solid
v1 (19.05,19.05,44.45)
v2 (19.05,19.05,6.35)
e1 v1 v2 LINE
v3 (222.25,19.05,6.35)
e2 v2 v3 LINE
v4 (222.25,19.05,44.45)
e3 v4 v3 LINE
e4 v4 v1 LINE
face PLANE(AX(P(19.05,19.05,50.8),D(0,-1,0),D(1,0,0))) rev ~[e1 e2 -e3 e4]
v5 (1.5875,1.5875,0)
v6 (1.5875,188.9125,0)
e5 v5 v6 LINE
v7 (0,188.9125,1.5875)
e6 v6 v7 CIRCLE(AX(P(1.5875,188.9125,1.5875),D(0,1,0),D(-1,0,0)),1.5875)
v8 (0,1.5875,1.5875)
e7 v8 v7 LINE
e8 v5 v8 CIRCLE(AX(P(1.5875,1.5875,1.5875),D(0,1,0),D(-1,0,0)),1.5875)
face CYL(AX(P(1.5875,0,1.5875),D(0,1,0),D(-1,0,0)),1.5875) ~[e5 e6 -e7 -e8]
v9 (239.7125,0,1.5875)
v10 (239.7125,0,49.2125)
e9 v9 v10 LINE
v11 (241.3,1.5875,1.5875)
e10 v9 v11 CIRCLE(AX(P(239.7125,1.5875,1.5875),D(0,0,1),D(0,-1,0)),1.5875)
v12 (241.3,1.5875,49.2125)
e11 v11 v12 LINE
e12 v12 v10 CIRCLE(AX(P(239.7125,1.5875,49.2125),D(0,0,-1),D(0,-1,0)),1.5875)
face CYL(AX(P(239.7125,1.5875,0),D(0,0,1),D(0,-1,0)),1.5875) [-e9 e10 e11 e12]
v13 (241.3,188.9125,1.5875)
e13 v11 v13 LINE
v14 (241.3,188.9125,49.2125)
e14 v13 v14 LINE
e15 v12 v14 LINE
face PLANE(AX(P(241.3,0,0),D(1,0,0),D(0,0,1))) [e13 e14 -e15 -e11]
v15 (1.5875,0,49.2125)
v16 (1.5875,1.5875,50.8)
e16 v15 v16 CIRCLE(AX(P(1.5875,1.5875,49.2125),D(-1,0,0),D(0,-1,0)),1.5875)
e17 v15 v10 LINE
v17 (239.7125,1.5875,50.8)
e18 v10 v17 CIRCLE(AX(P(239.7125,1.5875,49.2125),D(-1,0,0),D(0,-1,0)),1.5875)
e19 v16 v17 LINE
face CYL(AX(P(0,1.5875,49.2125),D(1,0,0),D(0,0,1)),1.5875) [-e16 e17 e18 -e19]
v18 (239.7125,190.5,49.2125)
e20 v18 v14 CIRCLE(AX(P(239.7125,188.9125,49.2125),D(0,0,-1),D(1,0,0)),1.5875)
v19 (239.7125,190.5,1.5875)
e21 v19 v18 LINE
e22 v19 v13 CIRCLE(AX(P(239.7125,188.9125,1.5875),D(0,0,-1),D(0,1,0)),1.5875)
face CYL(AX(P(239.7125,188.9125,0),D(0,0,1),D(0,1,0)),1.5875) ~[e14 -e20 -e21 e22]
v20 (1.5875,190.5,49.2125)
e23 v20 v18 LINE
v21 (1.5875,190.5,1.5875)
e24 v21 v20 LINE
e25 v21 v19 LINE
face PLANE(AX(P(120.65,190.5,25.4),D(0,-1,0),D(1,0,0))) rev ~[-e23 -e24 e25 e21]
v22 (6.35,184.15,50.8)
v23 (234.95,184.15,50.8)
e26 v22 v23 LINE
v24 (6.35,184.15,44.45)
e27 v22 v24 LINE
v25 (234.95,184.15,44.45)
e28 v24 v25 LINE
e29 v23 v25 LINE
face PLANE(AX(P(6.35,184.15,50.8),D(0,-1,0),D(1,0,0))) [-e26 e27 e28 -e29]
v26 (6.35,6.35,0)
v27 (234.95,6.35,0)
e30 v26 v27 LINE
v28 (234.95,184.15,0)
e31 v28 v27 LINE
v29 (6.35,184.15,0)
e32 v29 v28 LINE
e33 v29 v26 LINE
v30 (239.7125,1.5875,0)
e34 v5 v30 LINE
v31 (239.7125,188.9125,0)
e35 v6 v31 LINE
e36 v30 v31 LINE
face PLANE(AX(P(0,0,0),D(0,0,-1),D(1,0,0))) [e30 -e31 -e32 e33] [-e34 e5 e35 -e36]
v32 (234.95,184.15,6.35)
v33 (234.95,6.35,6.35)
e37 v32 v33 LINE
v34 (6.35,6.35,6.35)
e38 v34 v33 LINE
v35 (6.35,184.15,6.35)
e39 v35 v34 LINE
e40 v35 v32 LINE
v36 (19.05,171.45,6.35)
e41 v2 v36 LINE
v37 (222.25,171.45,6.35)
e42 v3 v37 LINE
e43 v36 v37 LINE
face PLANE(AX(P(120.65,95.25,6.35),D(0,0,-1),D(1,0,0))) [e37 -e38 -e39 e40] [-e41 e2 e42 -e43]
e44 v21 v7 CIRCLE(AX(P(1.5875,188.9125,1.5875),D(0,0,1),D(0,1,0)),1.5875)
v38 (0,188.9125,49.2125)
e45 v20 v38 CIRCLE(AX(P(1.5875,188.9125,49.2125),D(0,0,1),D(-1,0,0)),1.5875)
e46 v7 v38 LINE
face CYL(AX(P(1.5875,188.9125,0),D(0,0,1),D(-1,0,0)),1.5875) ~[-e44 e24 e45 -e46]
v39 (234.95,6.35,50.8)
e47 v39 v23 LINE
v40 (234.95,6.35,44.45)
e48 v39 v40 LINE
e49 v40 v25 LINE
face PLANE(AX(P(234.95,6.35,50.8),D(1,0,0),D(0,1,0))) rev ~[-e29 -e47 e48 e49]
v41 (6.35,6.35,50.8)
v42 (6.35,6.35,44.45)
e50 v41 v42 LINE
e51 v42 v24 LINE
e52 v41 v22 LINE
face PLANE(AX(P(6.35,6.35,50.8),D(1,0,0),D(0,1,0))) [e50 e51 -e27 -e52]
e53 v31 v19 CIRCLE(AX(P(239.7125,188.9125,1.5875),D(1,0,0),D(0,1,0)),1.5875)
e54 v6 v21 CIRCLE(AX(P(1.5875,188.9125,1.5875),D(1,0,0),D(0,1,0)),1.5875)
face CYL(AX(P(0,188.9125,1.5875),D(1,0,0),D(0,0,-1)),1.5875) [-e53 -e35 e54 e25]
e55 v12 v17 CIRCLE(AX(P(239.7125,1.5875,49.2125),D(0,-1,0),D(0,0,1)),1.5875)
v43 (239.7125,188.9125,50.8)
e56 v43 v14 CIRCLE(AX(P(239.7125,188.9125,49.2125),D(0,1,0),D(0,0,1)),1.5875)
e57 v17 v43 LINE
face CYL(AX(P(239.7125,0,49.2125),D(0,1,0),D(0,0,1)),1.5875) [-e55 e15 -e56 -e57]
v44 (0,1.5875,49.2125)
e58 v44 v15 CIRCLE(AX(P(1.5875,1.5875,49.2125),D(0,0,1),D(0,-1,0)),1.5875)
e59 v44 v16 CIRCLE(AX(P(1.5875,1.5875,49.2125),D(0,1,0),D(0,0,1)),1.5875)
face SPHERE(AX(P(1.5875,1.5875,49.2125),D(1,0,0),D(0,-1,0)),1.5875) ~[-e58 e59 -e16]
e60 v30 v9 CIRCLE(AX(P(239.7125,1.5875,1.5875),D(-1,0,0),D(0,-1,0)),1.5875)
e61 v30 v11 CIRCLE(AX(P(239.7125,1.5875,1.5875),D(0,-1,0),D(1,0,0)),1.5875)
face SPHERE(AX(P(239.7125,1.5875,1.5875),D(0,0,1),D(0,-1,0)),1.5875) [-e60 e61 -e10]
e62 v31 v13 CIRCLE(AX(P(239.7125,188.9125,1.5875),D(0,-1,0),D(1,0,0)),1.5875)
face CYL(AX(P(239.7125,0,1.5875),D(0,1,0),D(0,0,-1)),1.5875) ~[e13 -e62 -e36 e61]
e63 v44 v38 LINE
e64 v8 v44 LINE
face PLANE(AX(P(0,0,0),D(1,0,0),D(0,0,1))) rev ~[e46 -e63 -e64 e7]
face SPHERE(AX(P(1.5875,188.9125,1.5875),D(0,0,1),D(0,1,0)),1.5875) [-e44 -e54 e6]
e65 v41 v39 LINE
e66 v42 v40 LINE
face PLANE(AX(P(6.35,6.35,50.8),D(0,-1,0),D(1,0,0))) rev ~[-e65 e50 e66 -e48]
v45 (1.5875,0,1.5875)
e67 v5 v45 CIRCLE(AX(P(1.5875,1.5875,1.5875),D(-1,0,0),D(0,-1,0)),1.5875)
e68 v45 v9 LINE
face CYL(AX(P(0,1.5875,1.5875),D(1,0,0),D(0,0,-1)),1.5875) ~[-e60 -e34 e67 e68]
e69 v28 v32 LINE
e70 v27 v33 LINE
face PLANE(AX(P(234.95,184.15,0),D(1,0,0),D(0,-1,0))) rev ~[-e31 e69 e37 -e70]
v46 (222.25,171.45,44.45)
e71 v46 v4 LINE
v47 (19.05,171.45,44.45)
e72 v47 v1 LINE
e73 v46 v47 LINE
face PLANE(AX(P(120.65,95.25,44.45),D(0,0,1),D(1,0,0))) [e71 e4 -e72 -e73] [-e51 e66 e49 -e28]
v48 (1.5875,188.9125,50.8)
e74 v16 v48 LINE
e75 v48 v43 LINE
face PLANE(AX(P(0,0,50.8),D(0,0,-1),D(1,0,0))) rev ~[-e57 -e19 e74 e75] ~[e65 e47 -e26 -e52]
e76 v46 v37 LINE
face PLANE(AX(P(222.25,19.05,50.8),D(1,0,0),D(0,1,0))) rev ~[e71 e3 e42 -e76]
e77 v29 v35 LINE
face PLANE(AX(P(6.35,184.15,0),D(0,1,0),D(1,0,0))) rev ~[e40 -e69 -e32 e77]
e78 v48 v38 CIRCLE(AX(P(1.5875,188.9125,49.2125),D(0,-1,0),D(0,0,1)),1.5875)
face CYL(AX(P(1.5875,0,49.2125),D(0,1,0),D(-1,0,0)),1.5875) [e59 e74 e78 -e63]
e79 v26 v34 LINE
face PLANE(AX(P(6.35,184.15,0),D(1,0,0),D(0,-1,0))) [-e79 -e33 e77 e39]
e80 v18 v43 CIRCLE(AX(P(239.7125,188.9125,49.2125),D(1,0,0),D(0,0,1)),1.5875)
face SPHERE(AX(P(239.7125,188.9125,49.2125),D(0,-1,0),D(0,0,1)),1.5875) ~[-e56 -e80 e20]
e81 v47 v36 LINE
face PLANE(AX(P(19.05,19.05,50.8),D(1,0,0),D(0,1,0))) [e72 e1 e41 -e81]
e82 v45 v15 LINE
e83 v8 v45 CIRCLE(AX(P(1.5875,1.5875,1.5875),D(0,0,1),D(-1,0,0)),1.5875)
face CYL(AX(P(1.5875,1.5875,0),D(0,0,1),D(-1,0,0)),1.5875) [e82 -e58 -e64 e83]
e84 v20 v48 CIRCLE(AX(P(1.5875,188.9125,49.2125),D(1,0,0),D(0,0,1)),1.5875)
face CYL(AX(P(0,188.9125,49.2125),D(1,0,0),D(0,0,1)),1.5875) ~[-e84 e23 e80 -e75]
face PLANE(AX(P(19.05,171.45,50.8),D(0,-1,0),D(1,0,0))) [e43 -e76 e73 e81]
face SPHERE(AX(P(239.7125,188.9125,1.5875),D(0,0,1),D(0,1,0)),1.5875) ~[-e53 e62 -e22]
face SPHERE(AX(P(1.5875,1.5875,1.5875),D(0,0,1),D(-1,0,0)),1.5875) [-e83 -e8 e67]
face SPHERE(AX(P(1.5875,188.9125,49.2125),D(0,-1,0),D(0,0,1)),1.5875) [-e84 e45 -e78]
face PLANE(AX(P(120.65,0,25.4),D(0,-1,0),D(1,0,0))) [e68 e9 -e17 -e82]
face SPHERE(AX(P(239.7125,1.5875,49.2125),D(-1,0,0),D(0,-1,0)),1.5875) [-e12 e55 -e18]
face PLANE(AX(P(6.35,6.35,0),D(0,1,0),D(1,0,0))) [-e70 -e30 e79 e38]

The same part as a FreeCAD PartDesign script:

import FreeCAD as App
import Part
import Sketcher

V = App.Vector
Q = App.Units.Quantity


def edges_at(feature, points):
    """Names of the edges that pass closest to the given points."""
    edges = feature.Shape.Edges
    near = lambda p: min(range(len(edges)), key=lambda i: edges[i].distToShape(Part.Vertex(*p))[0])
    return sorted({f"Edge{near(p) + 1}" for p in points})

doc = App.newDocument("Part")
body = doc.addObject("PartDesign::Body", "Body")

# Sketch on XZ plane
sketch1 = body.newObject("Sketcher::SketchObject", "Sketch")
sketch1.AttachmentSupport = (doc.getObject("XZ_Plane"), [""])
sketch1.MapMode = "FlatFace"
sketch1.addGeometry([
    Part.LineSegment(V(0, 50.8, 0), V(0, 0, 0)),
    Part.LineSegment(V(0, 0, 0), V(241.3, 0, 0)),
    Part.LineSegment(V(241.3, 0, 0), V(241.3, 50.8, 0)),
    Part.LineSegment(V(241.3, 50.8, 0), V(0, 50.8, 0)),
], False)
sketch1.addConstraint([
    Sketcher.Constraint("Coincident", 0, 2, 1, 1),
    Sketcher.Constraint("Coincident", 1, 2, 2, 1),
    Sketcher.Constraint("Coincident", 2, 2, 3, 1),
    Sketcher.Constraint("Coincident", 3, 2, 0, 1),
    Sketcher.Constraint("Vertical", 0),
    Sketcher.Constraint("Horizontal", 1),
    Sketcher.Constraint("Vertical", 2),
    Sketcher.Constraint("Horizontal", 3),
    Sketcher.Constraint("Coincident", 0, 2, -1, 1),
    Sketcher.Constraint("DistanceY", 0, 2, 0, 1, Q("2 in")),
    Sketcher.Constraint("DistanceX", 1, 1, 1, 2, Q("9.5 in")),
])
pad1 = body.newObject("PartDesign::Pad", "Pad")
pad1.Profile = sketch1
pad1.Length = Q("7.5 in")
pad1.Reversed = True

# Sketch on XY plane
sketch2 = body.newObject("Sketcher::SketchObject", "Sketch001")
sketch2.AttachmentSupport = (doc.getObject("XY_Plane"), [""])
sketch2.MapMode = "FlatFace"
sketch2.AttachmentOffset = App.Placement(V(0, 0, 2 * 25.4), App.Rotation())
sketch2.addGeometry([
    Part.LineSegment(V(19.05, 171.45, 0), V(19.05, 19.05, 0)),
    Part.LineSegment(V(19.05, 19.05, 0), V(222.25, 19.05, 0)),
    Part.LineSegment(V(222.25, 19.05, 0), V(222.25, 171.45, 0)),
    Part.LineSegment(V(222.25, 171.45, 0), V(19.05, 171.45, 0)),
], False)
sketch2.addConstraint([
    Sketcher.Constraint("Coincident", 0, 2, 1, 1),
    Sketcher.Constraint("Coincident", 1, 2, 2, 1),
    Sketcher.Constraint("Coincident", 2, 2, 3, 1),
    Sketcher.Constraint("Coincident", 3, 2, 0, 1),
    Sketcher.Constraint("Vertical", 0),
    Sketcher.Constraint("Horizontal", 1),
    Sketcher.Constraint("Vertical", 2),
    Sketcher.Constraint("Horizontal", 3),
    Sketcher.Constraint("DistanceX", 1, 1, 1, 2, Q("8 in")),
    Sketcher.Constraint("DistanceY", 0, 2, 0, 1, Q("6 in")),
    Sketcher.Constraint("DistanceX", -1, 1, 0, 2, Q("0.75 in")),
    Sketcher.Constraint("DistanceY", -1, 1, 0, 2, Q("0.75 in")),
])
pocket1 = body.newObject("PartDesign::Pocket", "Pocket")
pocket1.Profile = sketch2
pocket1.Type = "ThroughAll"

# Sketch on XY plane
sketch3 = body.newObject("Sketcher::SketchObject", "Sketch002")
sketch3.AttachmentSupport = (doc.getObject("XY_Plane"), [""])
sketch3.MapMode = "FlatFace"
sketch3.AttachmentOffset = App.Placement(V(0, 0, 2 * 25.4), App.Rotation())
sketch3.addGeometry([
    Part.LineSegment(V(6.35, 184.15, 0), V(6.35, 6.35, 0)),
    Part.LineSegment(V(6.35, 6.35, 0), V(234.95, 6.35, 0)),
    Part.LineSegment(V(234.95, 6.35, 0), V(234.95, 184.15, 0)),
    Part.LineSegment(V(234.95, 184.15, 0), V(6.35, 184.15, 0)),
], False)
sketch3.addConstraint([
    Sketcher.Constraint("Coincident", 0, 2, 1, 1),
    Sketcher.Constraint("Coincident", 1, 2, 2, 1),
    Sketcher.Constraint("Coincident", 2, 2, 3, 1),
    Sketcher.Constraint("Coincident", 3, 2, 0, 1),
    Sketcher.Constraint("Vertical", 0),
    Sketcher.Constraint("Horizontal", 1),
    Sketcher.Constraint("Vertical", 2),
    Sketcher.Constraint("Horizontal", 3),
    Sketcher.Constraint("DistanceX", 1, 1, 1, 2, Q("9 in")),
    Sketcher.Constraint("DistanceY", 0, 2, 0, 1, Q("7 in")),
    Sketcher.Constraint("DistanceX", -1, 1, 0, 2, Q("0.25 in")),
    Sketcher.Constraint("DistanceY", -1, 1, 0, 2, Q("0.25 in")),
])
pocket2 = body.newObject("PartDesign::Pocket", "Pocket001")
pocket2.Profile = sketch3
pocket2.Length = Q("0.25 in")

# Sketch on XY plane
sketch4 = body.newObject("Sketcher::SketchObject", "Sketch003")
sketch4.AttachmentSupport = (doc.getObject("XY_Plane"), [""])
sketch4.MapMode = "FlatFace"
sketch4.addGeometry([
    Part.LineSegment(V(6.35, 6.35, 0), V(6.35, 184.15, 0)),
    Part.LineSegment(V(6.35, 184.15, 0), V(234.95, 184.15, 0)),
    Part.LineSegment(V(234.95, 184.15, 0), V(234.95, 6.35, 0)),
    Part.LineSegment(V(234.95, 6.35, 0), V(6.35, 6.35, 0)),
], False)
sketch4.addConstraint([
    Sketcher.Constraint("Coincident", 0, 2, 1, 1),
    Sketcher.Constraint("Coincident", 1, 2, 2, 1),
    Sketcher.Constraint("Coincident", 2, 2, 3, 1),
    Sketcher.Constraint("Coincident", 3, 2, 0, 1),
    Sketcher.Constraint("Vertical", 0),
    Sketcher.Constraint("Horizontal", 1),
    Sketcher.Constraint("Vertical", 2),
    Sketcher.Constraint("Horizontal", 3),
    Sketcher.Constraint("DistanceX", 1, 1, 1, 2, Q("9 in")),
    Sketcher.Constraint("DistanceY", 0, 1, 0, 2, Q("7 in")),
    Sketcher.Constraint("DistanceX", -1, 1, 0, 2, Q("0.25 in")),
    Sketcher.Constraint("DistanceY", -1, 1, 0, 2, Q("7.25 in")),
])
pocket3 = body.newObject("PartDesign::Pocket", "Pocket002")
pocket3.Profile = sketch4
pocket3.Length = Q("0.25 in")
pocket3.Reversed = True
doc.recompute()

fillet = body.newObject("PartDesign::Fillet", "Fillet")
fillet.Base = (pocket3, edges_at(pocket3, [
    (120.65, 0, 50.8),
    (0, 0, 25.4),
    (0, 95.25, 50.8),
    (241.3, 0, 25.4),
    (241.3, 95.25, 50.8),
    (120.65, 190.5, 50.8),
    (241.3, 190.5, 25.4),
    (0, 190.5, 25.4),
    (120.65, 190.5, 0),
    (0, 95.25, 0),
    (120.65, 0, 0),
    (241.3, 95.25, 0),
]))
fillet.Radius = Q("0.0625 in")

doc.recompute()
